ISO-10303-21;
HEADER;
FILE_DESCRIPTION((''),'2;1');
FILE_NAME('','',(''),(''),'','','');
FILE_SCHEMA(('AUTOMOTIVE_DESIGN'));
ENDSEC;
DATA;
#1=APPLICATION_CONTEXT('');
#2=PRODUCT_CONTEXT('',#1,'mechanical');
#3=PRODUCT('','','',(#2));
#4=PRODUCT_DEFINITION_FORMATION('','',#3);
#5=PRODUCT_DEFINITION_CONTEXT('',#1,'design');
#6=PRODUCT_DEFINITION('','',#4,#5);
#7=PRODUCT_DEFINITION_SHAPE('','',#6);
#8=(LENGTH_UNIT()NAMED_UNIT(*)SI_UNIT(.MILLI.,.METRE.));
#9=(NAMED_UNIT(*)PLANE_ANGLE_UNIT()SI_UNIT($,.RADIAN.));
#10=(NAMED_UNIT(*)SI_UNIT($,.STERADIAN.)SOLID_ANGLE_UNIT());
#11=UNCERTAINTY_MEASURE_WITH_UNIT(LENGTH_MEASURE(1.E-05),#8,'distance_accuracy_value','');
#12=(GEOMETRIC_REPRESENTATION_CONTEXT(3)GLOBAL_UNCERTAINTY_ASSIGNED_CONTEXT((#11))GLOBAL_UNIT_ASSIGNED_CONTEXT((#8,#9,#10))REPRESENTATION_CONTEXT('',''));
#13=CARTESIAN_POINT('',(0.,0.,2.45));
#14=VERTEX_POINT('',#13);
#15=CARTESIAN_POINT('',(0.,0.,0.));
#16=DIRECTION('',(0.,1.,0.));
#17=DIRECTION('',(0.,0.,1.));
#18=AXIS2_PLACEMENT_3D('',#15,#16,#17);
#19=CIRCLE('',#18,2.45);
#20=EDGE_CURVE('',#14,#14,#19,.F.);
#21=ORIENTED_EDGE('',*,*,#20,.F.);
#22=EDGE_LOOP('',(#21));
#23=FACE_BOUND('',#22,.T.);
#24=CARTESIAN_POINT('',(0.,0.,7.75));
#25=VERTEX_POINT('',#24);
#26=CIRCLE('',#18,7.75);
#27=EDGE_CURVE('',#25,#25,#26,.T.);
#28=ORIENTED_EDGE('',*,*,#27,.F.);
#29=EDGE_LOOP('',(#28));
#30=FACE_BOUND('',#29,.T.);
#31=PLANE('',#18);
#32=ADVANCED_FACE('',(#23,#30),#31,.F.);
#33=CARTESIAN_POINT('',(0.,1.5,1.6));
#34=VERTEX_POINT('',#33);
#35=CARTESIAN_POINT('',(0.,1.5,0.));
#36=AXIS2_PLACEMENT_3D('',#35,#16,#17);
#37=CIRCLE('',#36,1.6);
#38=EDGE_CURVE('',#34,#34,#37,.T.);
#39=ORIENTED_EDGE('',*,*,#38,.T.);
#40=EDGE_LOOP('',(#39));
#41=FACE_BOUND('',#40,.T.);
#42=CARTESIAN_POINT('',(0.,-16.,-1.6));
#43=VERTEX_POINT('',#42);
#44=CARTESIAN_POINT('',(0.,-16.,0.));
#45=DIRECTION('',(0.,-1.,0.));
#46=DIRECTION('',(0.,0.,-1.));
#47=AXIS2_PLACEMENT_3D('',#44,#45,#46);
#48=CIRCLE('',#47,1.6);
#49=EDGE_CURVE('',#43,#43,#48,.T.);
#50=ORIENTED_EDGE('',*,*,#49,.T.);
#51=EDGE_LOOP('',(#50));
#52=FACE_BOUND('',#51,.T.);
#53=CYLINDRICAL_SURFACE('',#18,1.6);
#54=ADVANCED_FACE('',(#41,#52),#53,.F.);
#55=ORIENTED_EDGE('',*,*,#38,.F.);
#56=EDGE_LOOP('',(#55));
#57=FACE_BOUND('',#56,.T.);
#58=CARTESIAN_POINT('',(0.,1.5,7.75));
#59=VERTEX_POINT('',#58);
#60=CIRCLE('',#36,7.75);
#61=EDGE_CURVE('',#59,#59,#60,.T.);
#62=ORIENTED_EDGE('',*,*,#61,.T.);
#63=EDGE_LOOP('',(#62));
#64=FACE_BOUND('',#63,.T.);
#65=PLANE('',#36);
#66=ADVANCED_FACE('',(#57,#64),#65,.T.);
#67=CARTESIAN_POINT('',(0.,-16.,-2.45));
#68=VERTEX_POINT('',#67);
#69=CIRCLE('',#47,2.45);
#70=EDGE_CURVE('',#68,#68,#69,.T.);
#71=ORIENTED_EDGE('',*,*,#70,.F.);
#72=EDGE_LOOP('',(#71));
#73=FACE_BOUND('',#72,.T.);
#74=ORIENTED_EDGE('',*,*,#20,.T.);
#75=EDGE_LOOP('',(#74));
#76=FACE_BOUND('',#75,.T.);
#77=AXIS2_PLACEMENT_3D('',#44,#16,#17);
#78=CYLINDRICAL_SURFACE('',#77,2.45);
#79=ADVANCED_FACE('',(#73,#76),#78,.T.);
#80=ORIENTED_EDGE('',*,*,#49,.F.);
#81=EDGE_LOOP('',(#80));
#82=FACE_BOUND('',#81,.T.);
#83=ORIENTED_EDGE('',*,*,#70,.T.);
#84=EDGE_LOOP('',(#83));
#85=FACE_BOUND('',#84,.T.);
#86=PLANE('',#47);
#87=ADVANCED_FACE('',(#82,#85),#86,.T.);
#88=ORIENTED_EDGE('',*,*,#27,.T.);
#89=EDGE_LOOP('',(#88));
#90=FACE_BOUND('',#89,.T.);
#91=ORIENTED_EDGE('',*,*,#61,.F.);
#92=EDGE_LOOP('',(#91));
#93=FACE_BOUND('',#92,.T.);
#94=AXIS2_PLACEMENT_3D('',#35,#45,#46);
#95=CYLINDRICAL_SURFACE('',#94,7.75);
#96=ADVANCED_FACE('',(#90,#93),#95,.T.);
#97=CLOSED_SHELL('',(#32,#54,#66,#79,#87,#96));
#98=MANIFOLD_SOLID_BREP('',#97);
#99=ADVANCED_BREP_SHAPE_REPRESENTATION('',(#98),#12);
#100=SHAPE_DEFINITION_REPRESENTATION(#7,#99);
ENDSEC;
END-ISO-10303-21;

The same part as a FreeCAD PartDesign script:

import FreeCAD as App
import Part
import Sketcher
from FreeCAD import Vector
Q = App.Units.Quantity

doc = App.newDocument("Part")
body = doc.addObject("PartDesign::Body", "Body")

# Sketch on XZ plane
sketch1 = body.newObject("Sketcher::SketchObject", "Sketch")
sketch1.AttachmentSupport = (doc.getObject("XZ_Plane"), [""])
sketch1.MapMode = "FlatFace"
sketch1.addGeometry(Part.Circle(Vector(0, 0, 0), Vector(0, 0, 1), 8), False)
sketch1.addConstraint(Sketcher.Constraint("Coincident", 0, 3, -1, 1))
sketch1.addConstraint(Sketcher.Constraint("Diameter", 0, Q("15.5 mm")))
pad1 = body.newObject("PartDesign::Pad", "Pad")
pad1.Profile = sketch1
pad1.Length = 1.5
pad1.Reversed = True

# Sketch on XZ plane
sketch2 = body.newObject("Sketcher::SketchObject", "Sketch001")
sketch2.AttachmentSupport = (doc.getObject("XZ_Plane"), [""])
sketch2.MapMode = "FlatFace"
sketch2.AttachmentOffset = App.Placement(Vector(0, 0, -1.5), App.Rotation())
sketch2.addGeometry(Part.Circle(Vector(0, 0, 0), Vector(0, 0, 1), 1.6), False)
sketch2.addConstraint(Sketcher.Constraint("Coincident", 0, 3, -1, 1))
sketch2.addConstraint(Sketcher.Constraint("Diameter", 0, Q("3.2 mm")))
pocket1 = body.newObject("PartDesign::Pocket", "Pocket")
pocket1.Profile = sketch2
pocket1.Type = "ThroughAll"
pocket1.Reversed = True

# Sketch on XZ plane
sketch3 = body.newObject("Sketcher::SketchObject", "Sketch002")
sketch3.AttachmentSupport = (doc.getObject("XZ_Plane"), [""])
sketch3.MapMode = "FlatFace"
sketch3.addGeometry(Part.Circle(Vector(0, 0, 0), Vector(0, 0, 1), 2.5), False)
sketch3.addGeometry(Part.Circle(Vector(0, 0, 0), Vector(0, 0, 1), 1.6), False)
sketch3.addConstraint(Sketcher.Constraint("Coincident", 0, 3, -1, 1))
sketch3.addConstraint(Sketcher.Constraint("Coincident", 1, 3, -1, 1))
sketch3.addConstraint(Sketcher.Constraint("Diameter", 0, Q("4.9 mm")))
sketch3.addConstraint(Sketcher.Constraint("Diameter", 1, Q("3.2 mm")))
pad2 = body.newObject("PartDesign::Pad", "Pad001")
pad2.Profile = sketch3
pad2.Length = 16

doc.recompute()
